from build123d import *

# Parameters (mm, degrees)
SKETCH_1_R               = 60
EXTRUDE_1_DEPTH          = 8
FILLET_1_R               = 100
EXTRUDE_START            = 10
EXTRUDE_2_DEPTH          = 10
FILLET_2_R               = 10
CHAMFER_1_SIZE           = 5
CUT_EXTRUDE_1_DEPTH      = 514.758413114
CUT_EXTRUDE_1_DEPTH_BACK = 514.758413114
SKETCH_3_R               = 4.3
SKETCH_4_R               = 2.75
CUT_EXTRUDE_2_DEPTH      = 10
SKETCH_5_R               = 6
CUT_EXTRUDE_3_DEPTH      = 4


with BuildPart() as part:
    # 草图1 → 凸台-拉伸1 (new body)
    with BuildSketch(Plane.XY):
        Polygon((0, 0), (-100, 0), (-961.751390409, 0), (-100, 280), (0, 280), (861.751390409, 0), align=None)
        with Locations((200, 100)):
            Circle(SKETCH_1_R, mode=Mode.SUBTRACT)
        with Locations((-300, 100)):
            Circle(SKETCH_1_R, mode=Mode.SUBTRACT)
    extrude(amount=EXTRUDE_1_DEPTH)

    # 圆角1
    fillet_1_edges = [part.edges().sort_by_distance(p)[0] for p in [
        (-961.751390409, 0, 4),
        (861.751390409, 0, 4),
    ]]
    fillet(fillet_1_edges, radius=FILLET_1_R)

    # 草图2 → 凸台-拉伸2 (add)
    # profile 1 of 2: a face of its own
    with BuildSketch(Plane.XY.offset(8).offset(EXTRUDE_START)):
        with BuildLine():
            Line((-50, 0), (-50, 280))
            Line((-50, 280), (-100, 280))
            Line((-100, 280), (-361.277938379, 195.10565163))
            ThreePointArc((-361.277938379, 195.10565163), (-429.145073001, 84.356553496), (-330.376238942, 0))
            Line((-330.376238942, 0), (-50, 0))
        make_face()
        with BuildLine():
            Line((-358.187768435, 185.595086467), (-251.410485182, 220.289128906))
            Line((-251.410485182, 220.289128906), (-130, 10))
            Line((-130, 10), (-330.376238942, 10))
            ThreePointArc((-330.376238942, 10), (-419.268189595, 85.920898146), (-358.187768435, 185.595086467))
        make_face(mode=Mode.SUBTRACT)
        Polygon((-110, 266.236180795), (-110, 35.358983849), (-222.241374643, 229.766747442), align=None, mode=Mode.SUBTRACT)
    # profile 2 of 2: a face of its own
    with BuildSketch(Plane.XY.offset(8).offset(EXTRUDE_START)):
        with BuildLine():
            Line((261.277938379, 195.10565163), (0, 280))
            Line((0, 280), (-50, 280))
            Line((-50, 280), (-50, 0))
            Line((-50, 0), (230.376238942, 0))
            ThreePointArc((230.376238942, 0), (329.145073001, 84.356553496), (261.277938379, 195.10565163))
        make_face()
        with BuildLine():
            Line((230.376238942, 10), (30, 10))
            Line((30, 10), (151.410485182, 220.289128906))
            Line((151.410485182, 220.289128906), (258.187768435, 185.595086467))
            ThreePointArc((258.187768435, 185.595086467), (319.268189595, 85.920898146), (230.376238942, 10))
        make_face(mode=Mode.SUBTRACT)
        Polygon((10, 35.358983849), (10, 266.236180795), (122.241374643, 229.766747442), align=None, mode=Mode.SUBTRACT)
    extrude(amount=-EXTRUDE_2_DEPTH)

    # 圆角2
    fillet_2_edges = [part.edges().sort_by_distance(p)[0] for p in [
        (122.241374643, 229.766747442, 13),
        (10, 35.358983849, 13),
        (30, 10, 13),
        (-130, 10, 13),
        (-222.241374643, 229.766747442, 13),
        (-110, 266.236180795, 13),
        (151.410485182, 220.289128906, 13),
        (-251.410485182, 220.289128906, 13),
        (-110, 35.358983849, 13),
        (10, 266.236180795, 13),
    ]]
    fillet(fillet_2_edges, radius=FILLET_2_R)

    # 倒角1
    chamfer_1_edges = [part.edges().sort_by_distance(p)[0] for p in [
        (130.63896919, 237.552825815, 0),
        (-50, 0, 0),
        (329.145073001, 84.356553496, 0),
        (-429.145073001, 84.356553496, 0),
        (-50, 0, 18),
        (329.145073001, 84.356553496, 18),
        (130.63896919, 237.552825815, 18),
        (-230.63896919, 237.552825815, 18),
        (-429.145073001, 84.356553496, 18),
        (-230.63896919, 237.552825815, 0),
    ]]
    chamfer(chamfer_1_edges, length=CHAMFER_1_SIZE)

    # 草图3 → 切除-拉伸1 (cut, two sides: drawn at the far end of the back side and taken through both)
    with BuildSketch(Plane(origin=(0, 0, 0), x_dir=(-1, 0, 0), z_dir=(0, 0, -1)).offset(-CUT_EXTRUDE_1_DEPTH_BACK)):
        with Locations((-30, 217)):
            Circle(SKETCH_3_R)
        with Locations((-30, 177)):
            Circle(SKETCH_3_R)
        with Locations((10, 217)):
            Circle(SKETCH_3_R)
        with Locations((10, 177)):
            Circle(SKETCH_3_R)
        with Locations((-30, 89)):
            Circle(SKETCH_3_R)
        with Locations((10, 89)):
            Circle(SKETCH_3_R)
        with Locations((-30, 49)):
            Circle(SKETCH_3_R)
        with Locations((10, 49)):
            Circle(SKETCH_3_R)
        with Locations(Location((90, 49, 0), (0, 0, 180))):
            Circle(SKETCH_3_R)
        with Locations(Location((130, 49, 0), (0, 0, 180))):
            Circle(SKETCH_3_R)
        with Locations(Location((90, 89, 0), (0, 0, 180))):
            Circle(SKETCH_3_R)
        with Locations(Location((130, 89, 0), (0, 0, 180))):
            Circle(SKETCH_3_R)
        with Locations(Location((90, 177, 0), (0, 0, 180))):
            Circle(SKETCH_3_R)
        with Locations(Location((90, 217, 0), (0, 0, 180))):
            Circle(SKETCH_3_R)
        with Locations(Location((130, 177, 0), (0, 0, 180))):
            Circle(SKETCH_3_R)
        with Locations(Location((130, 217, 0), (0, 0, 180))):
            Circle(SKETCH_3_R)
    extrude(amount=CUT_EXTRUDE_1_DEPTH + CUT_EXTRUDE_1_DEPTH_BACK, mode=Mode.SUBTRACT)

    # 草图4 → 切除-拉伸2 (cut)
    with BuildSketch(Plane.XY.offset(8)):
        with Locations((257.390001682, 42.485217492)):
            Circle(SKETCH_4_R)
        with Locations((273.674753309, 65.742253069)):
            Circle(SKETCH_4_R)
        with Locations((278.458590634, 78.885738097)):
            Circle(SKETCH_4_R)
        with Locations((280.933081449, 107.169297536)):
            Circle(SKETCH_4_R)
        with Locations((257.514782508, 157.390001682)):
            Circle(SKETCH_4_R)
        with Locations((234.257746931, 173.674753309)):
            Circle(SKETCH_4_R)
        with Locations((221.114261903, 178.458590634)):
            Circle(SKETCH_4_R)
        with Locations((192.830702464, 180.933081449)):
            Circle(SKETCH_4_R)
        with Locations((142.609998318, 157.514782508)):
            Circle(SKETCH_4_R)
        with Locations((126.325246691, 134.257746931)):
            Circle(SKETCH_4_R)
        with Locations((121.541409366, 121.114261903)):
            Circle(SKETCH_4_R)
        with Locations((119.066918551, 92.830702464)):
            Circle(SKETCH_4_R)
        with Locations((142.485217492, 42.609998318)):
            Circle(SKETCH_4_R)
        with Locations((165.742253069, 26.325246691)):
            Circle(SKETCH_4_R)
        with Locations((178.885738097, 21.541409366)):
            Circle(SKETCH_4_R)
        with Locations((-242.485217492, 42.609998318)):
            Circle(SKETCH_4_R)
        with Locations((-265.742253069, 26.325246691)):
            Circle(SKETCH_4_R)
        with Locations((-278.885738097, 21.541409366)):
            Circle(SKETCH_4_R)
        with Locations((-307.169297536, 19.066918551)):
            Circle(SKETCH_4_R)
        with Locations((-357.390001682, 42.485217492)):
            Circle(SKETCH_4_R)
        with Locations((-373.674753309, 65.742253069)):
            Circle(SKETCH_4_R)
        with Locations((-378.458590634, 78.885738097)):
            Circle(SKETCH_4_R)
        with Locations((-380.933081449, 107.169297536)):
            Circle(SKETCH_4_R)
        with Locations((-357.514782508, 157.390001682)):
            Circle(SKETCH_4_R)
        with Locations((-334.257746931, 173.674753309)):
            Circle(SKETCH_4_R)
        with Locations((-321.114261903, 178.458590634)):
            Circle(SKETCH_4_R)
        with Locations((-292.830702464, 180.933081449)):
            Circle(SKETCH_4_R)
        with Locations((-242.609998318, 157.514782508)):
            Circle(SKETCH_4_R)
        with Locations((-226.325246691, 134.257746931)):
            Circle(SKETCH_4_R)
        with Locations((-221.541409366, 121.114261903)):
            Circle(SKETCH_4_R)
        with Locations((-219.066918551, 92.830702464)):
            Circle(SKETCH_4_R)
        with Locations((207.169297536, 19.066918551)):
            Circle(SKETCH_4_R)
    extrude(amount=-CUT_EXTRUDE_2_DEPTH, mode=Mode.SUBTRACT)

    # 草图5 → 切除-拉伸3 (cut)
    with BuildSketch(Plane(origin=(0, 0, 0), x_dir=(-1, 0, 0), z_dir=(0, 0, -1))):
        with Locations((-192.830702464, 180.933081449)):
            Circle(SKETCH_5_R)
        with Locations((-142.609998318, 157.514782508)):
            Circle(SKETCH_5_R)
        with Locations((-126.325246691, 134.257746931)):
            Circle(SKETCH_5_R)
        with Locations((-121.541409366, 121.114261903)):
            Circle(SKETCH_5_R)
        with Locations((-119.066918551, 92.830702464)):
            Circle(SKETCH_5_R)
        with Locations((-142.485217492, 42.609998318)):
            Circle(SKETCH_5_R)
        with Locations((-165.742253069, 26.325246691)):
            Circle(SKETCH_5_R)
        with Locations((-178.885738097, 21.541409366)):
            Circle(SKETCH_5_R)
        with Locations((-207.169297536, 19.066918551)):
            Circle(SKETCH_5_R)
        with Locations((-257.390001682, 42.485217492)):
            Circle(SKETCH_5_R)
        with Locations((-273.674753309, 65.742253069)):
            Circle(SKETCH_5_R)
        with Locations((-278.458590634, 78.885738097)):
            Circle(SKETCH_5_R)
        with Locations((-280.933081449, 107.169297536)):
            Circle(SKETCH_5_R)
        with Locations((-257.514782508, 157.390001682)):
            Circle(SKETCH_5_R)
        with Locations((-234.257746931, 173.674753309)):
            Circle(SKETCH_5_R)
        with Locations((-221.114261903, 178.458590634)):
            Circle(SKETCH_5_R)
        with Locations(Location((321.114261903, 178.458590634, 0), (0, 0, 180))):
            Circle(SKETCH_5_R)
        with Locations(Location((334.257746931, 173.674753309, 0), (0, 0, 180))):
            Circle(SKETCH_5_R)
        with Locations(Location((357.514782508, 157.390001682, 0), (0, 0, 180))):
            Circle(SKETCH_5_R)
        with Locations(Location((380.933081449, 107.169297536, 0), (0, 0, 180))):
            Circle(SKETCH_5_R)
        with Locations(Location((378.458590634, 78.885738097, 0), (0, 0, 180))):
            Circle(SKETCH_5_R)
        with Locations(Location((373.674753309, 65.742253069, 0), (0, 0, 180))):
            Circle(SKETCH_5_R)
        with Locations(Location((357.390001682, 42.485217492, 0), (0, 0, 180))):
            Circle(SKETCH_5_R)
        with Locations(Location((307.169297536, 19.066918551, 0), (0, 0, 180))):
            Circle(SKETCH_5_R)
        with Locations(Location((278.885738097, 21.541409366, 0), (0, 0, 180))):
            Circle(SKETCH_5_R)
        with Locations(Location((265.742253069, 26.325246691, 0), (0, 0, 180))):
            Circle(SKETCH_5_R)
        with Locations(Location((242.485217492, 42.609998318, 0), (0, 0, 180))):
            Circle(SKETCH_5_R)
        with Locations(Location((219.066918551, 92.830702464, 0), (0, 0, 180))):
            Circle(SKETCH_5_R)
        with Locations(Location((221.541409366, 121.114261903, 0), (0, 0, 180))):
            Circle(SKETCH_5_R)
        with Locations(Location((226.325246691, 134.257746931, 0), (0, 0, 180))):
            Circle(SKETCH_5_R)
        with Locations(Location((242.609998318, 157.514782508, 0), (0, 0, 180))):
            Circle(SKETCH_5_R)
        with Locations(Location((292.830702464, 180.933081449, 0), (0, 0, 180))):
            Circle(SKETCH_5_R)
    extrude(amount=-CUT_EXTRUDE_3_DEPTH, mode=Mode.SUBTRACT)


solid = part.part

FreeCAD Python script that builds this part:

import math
import FreeCAD as App
import Part
import Sketcher
from FreeCAD import Vector
Q = App.Units.Quantity


def edges_at(feature, points):
    """Names of the edges that pass closest to the given points."""
    edges = feature.Shape.Edges
    near = lambda p: min(range(len(edges)), key=lambda i: edges[i].distToShape(Part.Vertex(*p))[0])
    return sorted({f"Edge{near(p) + 1}" for p in points})

doc = App.newDocument("Part")
body = doc.addObject("PartDesign::Body", "Body")

# Sketch on XY plane
sketch1 = body.newObject("Sketcher::SketchObject", "Sketch")
sketch1.AttachmentSupport = (doc.getObject("XY_Plane"), [""])
sketch1.MapMode = "FlatFace"
sketch1.addGeometry(Part.LineSegment(Vector(-962, 0, 0), Vector(862, 0, 0)), False)
sketch1.addGeometry(Part.LineSegment(Vector(862, 0, 0), Vector(0, 280, 0)), False)
sketch1.addGeometry(Part.LineSegment(Vector(0, 280, 0), Vector(-100, 280, 0)), False)
sketch1.addGeometry(Part.LineSegment(Vector(-100, 280, 0), Vector(-962, 0, 0)), False)
sketch1.addGeometry(Part.Circle(Vector(200, 100, 0), Vector(0, 0, 1), 60), False)
sketch1.addGeometry(Part.Circle(Vector(-300, 100, 0), Vector(0, 0, 1), 60), False)
sketch1.addConstraint(Sketcher.Constraint("Coincident", 0, 2, 1, 1))
sketch1.addConstraint(Sketcher.Constraint("Coincident", 1, 2, 2, 1))
sketch1.addConstraint(Sketcher.Constraint("Coincident", 2, 2, 3, 1))
sketch1.addConstraint(Sketcher.Constraint("Coincident", 3, 2, 0, 1))
sketch1.addConstraint(Sketcher.Constraint("Horizontal", 0))
sketch1.addConstraint(Sketcher.Constraint("Horizontal", 2))
sketch1.addConstraint(Sketcher.Constraint("Equal", 4, 5))
sketch1.addConstraint(Sketcher.Constraint("PointOnObject", 0, 2, -1))
sketch1.addConstraint(Sketcher.Constraint("PointOnObject", 1, 2, -2))
sketch1.addConstraint(Sketcher.Constraint("Horizontal", 4, 3, 5, 3))
sketch1.addConstraint(Sketcher.Constraint("Equal", 1, 3))
sketch1.addConstraint(Sketcher.Constraint("Diameter", 4, Q("120 mm")))
sketch1.addConstraint(Sketcher.Constraint("DistanceX", 2, 2, 2, 1, Q("100 mm")))
sketch1.addConstraint(Sketcher.Constraint("Angle", 1, Q("162 deg")))
sketch1.addConstraint(Sketcher.Constraint("DistanceX", -1, 1, 4, 3, Q("200 mm")))
sketch1.addConstraint(Sketcher.Constraint("DistanceY", -1, 1, 4, 3, Q("100 mm")))
sketch1.addConstraint(Sketcher.Constraint("DistanceX", 5, 3, -1, 1, Q("300 mm")))
sketch1.addConstraint(Sketcher.Constraint("DistanceY", -1, 1, 1, 2, Q("280 mm")))
pad1 = body.newObject("PartDesign::Pad", "Pad")
pad1.Profile = sketch1
pad1.Length = 8
doc.recompute()

fillet = body.newObject("PartDesign::Fillet", "Fillet")
fillet.Base = (pad1, edges_at(pad1, [(-961.751, 0, 4), (861.751, 0, 4)]))
fillet.Radius = 100

# Sketch on XY plane
sketch2 = body.newObject("Sketcher::SketchObject", "Sketch001")
sketch2.AttachmentSupport = (doc.getObject("XY_Plane"), [""])
sketch2.MapMode = "FlatFace"
sketch2.AttachmentOffset = App.Placement(Vector(0, 0, 18), App.Rotation())
sketch2.addGeometry(Part.LineSegment(Vector(-330, 0, 0), Vector(230, 0, 0)), False)
sketch2.addGeometry(Part.ArcOfCircle(Part.Circle(Vector(230, 100, 0), Vector(0, 0, 1), 100), math.radians(-90), math.radians(72)), False)
sketch2.addGeometry(Part.LineSegment(Vector(261, 195, 0), Vector(0, 280, 0)), False)
sketch2.addGeometry(Part.LineSegment(Vector(0, 280, 0), Vector(-100, 280, 0)), False)
sketch2.addGeometry(Part.LineSegment(Vector(-100, 280, 0), Vector(-361, 195, 0)), False)
sketch2.addGeometry(Part.ArcOfCircle(Part.Circle(Vector(-330, 100, 0), Vector(0, 0, 1), 100), math.radians(108), math.radians(270)), False)
sketch2.addGeometry(Part.ArcOfCircle(Part.Circle(Vector(-330, 100, 0), Vector(0, 0, 1), 90), math.radians(108), math.radians(270)), False)
sketch2.addGeometry(Part.LineSegment(Vector(-358, 186, 0), Vector(-251, 220, 0)), False)
sketch2.addGeometry(Part.LineSegment(Vector(-251, 220, 0), Vector(-130, 10, 0)), False)
sketch2.addGeometry(Part.LineSegment(Vector(-130, 10, 0), Vector(-330, 10, 0)), False)
sketch2.addGeometry(Part.LineSegment(Vector(-222, 230, 0), Vector(-110, 266, 0)), False)
sketch2.addGeometry(Part.LineSegment(Vector(-110, 266, 0), Vector(-110, 35, 0)), False)
sketch2.addGeometry(Part.LineSegment(Vector(-110, 35, 0), Vector(-222, 230, 0)), False)
sketch2.addGeometry(Part.LineSegment(Vector(10, 35, 0), Vector(10, 266, 0)), False)
sketch2.addGeometry(Part.LineSegment(Vector(10, 266, 0), Vector(122, 230, 0)), False)
sketch2.addGeometry(Part.LineSegment(Vector(122, 230, 0), Vector(10, 35, 0)), False)
sketch2.addGeometry(Part.ArcOfCircle(Part.Circle(Vector(230, 100, 0), Vector(0, 0, 1), 90), math.radians(-90), math.radians(72)), False)
sketch2.addGeometry(Part.LineSegment(Vector(230, 10, 0), Vector(30, 10, 0)), False)
sketch2.addGeometry(Part.LineSegment(Vector(30, 10, 0), Vector(151, 220, 0)), False)
sketch2.addGeometry(Part.LineSegment(Vector(151, 220, 0), Vector(258, 186, 0)), False)
sketch2.addConstraint(Sketcher.Constraint("Tangent", 0, 2, 1, 1))
sketch2.addConstraint(Sketcher.Constraint("Tangent", 1, 2, 2, 1))
sketch2.addConstraint(Sketcher.Constraint("Coincident", 2, 2, 3, 1))
sketch2.addConstraint(Sketcher.Constraint("Coincident", 3, 2, 4, 1))
sketch2.addConstraint(Sketcher.Constraint("Tangent", 4, 2, 5, 1))
sketch2.addConstraint(Sketcher.Constraint("Tangent", 5, 2, 0, 1))
sketch2.addConstraint(Sketcher.Constraint("Tangent", 6, 1, 7, 1))
sketch2.addConstraint(Sketcher.Constraint("Coincident", 7, 2, 8, 1))
sketch2.addConstraint(Sketcher.Constraint("Coincident", 8, 2, 9, 1))
sketch2.addConstraint(Sketcher.Constraint("Tangent", 9, 2, 6, 2))
sketch2.addConstraint(Sketcher.Constraint("Coincident", 10, 2, 11, 1))
sketch2.addConstraint(Sketcher.Constraint("Coincident", 11, 2, 12, 1))
sketch2.addConstraint(Sketcher.Constraint("Coincident", 12, 2, 10, 1))
sketch2.addConstraint(Sketcher.Constraint("Coincident", 13, 2, 14, 1))
sketch2.addConstraint(Sketcher.Constraint("Coincident", 14, 2, 15, 1))
sketch2.addConstraint(Sketcher.Constraint("Coincident", 15, 2, 13, 1))
sketch2.addConstraint(Sketcher.Constraint("Tangent", 16, 1, 17, 1))
sketch2.addConstraint(Sketcher.Constraint("Coincident", 17, 2, 18, 1))
sketch2.addConstraint(Sketcher.Constraint("Coincident", 18, 2, 19, 1))
sketch2.addConstraint(Sketcher.Constraint("Tangent", 19, 2, 16, 2))
sketch2.addConstraint(Sketcher.Constraint("Horizontal", 0))
sketch2.addConstraint(Sketcher.Constraint("Horizontal", 3))
sketch2.addConstraint(Sketcher.Constraint("Horizontal", 9))
sketch2.addConstraint(Sketcher.Constraint("Vertical", 11))
sketch2.addConstraint(Sketcher.Constraint("Vertical", 13))
sketch2.addConstraint(Sketcher.Constraint("Horizontal", 17))
sketch2.addConstraint(Sketcher.Constraint("Coincident", 6, 3, 5, 3))
sketch2.addConstraint(Sketcher.Constraint("Coincident", 16, 3, 1, 3))
sketch2.addConstraint(Sketcher.Constraint("Equal", 1, 5))
sketch2.addConstraint(Sketcher.Constraint("Equal", 6, 16))
sketch2.addConstraint(Sketcher.Constraint("PointOnObject", 0, 2, -1))
sketch2.addConstraint(Sketcher.Constraint("PointOnObject", 2, 2, -2))
sketch2.addConstraint(Sketcher.Constraint("Parallel", 4, 7))
sketch2.addConstraint(Sketcher.Constraint("Parallel", 7, 10))
sketch2.addConstraint(Sketcher.Constraint("Parallel", 8, 12))
sketch2.addConstraint(Sketcher.Constraint("Parallel", 2, 14))
sketch2.addConstraint(Sketcher.Constraint("Parallel", 15, 18))
sketch2.addConstraint(Sketcher.Constraint("Parallel", 14, 19))
sketch2.addConstraint(Sketcher.Constraint("Horizontal", 10, 2, 13, 2))
sketch2.addConstraint(Sketcher.Constraint("Horizontal", 12, 2, 14, 2))
sketch2.addConstraint(Sketcher.Constraint("Horizontal", 11, 2, 15, 2))
sketch2.addConstraint(Sketcher.Constraint("Horizontal", 7, 2, 18, 2))
sketch2.addConstraint(Sketcher.Constraint("Equal", 9, 17))
sketch2.addConstraint(Sketcher.Constraint("Radius", 1, Q("100 mm")))
sketch2.addConstraint(Sketcher.Constraint("Radius", 6, Q("90 mm")))
sketch2.addConstraint(Sketcher.Constraint("DistanceX", 3, 2, 3, 1, Q("100 mm")))
sketch2.addConstraint(Sketcher.Constraint("Angle", 2, Q("162 deg")))
sketch2.addConstraint(Sketcher.Constraint("Angle", 8, Q("-60 deg")))
sketch2.addConstraint(Sketcher.Constraint("DistanceY", -1, 1, 2, 2, Q("280 mm")))
sketch2.addConstraint(Sketcher.Constraint("DistanceX", 8, 2, -1, 1, Q("130 mm")))
sketch2.addConstraint(Sketcher.Constraint("DistanceX", 10, 2, -1, 1, Q("110 mm")))
sketch2.addConstraint(Sketcher.Constraint("DistanceX", -1, 1, 13, 2, Q("10 mm")))
sketch2.addConstraint(Sketcher.Constraint("Distance", 12, Q("224.482749 mm")))
sketch2.addConstraint(Sketcher.Constraint("DistanceY", -1, 1, 10, 2, Q("266.236181 mm")))
pad2 = body.newObject("PartDesign::Pad", "Pad001")
pad2.Profile = sketch2
pad2.Length = 10
pad2.Reversed = True
doc.recompute()

fillet2 = body.newObject("PartDesign::Fillet", "Fillet001")
fillet2.Base = (pad2, edges_at(pad2, [
    (122.241, 229.767, 13),
    (10, 35.359, 13),
    (30, 10, 13),
    (-130, 10, 13),
    (-222.241, 229.767, 13),
    (-110, 266.236, 13),
    (151.41, 220.289, 13),
    (-251.41, 220.289, 13),
    (-110, 35.359, 13),
    (10, 266.236, 13),
]))
fillet2.Radius = 10
doc.recompute()

chamfer = body.newObject("PartDesign::Chamfer", "Chamfer")
chamfer.Base = (fillet2, edges_at(fillet2, [
    (130.639, 237.553, 0),
    (-50, 0, 0),
    (329.145, 84.357, 0),
    (-429.145, 84.357, 0),
    (-50, 0, 18),
    (329.145, 84.357, 18),
    (130.639, 237.553, 18),
    (-230.639, 237.553, 18),
    (-429.145, 84.357, 18),
    (-230.639, 237.553, 0),
]))
chamfer.Size = 5

# Sketch on XY plane
sketch3 = body.newObject("Sketcher::SketchObject", "Sketch002")
sketch3.AttachmentSupport = (doc.getObject("XY_Plane"), [""])
sketch3.MapMode = "FlatFace"
sketch3.addGeometry(Part.Circle(Vector(30, 217, 0), Vector(0, 0, 1), 4.3), False)
sketch3.addGeometry(Part.Circle(Vector(30, 177, 0), Vector(0, 0, 1), 4.3), False)
sketch3.addGeometry(Part.Circle(Vector(-10, 217, 0), Vector(0, 0, 1), 4.3), False)
sketch3.addGeometry(Part.Circle(Vector(-10, 177, 0), Vector(0, 0, 1), 4.3), False)
sketch3.addGeometry(Part.Circle(Vector(30, 89, 0), Vector(0, 0, 1), 4.3), False)
sketch3.addGeometry(Part.Circle(Vector(-10, 89, 0), Vector(0, 0, 1), 4.3), False)
sketch3.addGeometry(Part.Circle(Vector(30, 49, 0), Vector(0, 0, 1), 4.3), False)
sketch3.addGeometry(Part.Circle(Vector(-10, 49, 0), Vector(0, 0, 1), 4.3), False)
sketch3.addGeometry(Part.Circle(Vector(-90, 49, 0), Vector(0, 0, 1), 4.3), False)
sketch3.addGeometry(Part.Circle(Vector(-130, 49, 0), Vector(0, 0, 1), 4.3), False)
sketch3.addGeometry(Part.Circle(Vector(-90, 89, 0), Vector(0, 0, 1), 4.3), False)
sketch3.addGeometry(Part.Circle(Vector(-130, 89, 0), Vector(0, 0, 1), 4.3), False)
sketch3.addGeometry(Part.Circle(Vector(-90, 177, 0), Vector(0, 0, 1), 4.3), False)
sketch3.addGeometry(Part.Circle(Vector(-90, 217, 0), Vector(0, 0, 1), 4.3), False)
sketch3.addGeometry(Part.Circle(Vector(-130, 177, 0), Vector(0, 0, 1), 4.3), False)
sketch3.addGeometry(Part.Circle(Vector(-130, 217, 0), Vector(0, 0, 1), 4.3), False)
sketch3.addConstraint(Sketcher.Constraint("Equal", 0, 1))
sketch3.addConstraint(Sketcher.Constraint("Equal", 1, 2))
sketch3.addConstraint(Sketcher.Constraint("Equal", 2, 3))
sketch3.addConstraint(Sketcher.Constraint("Equal", 3, 4))
sketch3.addConstraint(Sketcher.Constraint("Equal", 4, 5))
sketch3.addConstraint(Sketcher.Constraint("Equal", 5, 6))
sketch3.addConstraint(Sketcher.Constraint("Equal", 6, 7))
sketch3.addConstraint(Sketcher.Constraint("Equal", 7, 8))
sketch3.addConstraint(Sketcher.Constraint("Equal", 8, 9))
sketch3.addConstraint(Sketcher.Constraint("Equal", 9, 10))
sketch3.addConstraint(Sketcher.Constraint("Equal", 10, 11))
sketch3.addConstraint(Sketcher.Constraint("Equal", 11, 12))
sketch3.addConstraint(Sketcher.Constraint("Equal", 12, 13))
sketch3.addConstraint(Sketcher.Constraint("Equal", 13, 14))
sketch3.addConstraint(Sketcher.Constraint("Equal", 14, 15))
sketch3.addConstraint(Sketcher.Constraint("Horizontal", 0, 3, 2, 3))
sketch3.addConstraint(Sketcher.Constraint("Horizontal", 1, 3, 3, 3))
sketch3.addConstraint(Sketcher.Constraint("Horizontal", 4, 3, 5, 3))
sketch3.addConstraint(Sketcher.Constraint("Horizontal", 6, 3, 7, 3))
sketch3.addConstraint(Sketcher.Constraint("Horizontal", 7, 3, 8, 3))
sketch3.addConstraint(Sketcher.Constraint("Horizontal", 8, 3, 9, 3))
sketch3.addConstraint(Sketcher.Constraint("Horizontal", 5, 3, 10, 3))
sketch3.addConstraint(Sketcher.Constraint("Horizontal", 10, 3, 11, 3))
sketch3.addConstraint(Sketcher.Constraint("Horizontal", 3, 3, 12, 3))
sketch3.addConstraint(Sketcher.Constraint("Horizontal", 2, 3, 13, 3))
sketch3.addConstraint(Sketcher.Constraint("Horizontal", 12, 3, 14, 3))
sketch3.addConstraint(Sketcher.Constraint("Horizontal", 13, 3, 15, 3))
sketch3.addConstraint(Sketcher.Constraint("Vertical", 0, 3, 1, 3))
sketch3.addConstraint(Sketcher.Constraint("Vertical", 2, 3, 3, 3))
sketch3.addConstraint(Sketcher.Constraint("Vertical", 1, 3, 4, 3))
sketch3.addConstraint(Sketcher.Constraint("Vertical", 3, 3, 5, 3))
sketch3.addConstraint(Sketcher.Constraint("Vertical", 4, 3, 6, 3))
sketch3.addConstraint(Sketcher.Constraint("Vertical", 5, 3, 7, 3))
sketch3.addConstraint(Sketcher.Constraint("Vertical", 8, 3, 10, 3))
sketch3.addConstraint(Sketcher.Constraint("Vertical", 9, 3, 11, 3))
sketch3.addConstraint(Sketcher.Constraint("Vertical", 10, 3, 12, 3))
sketch3.addConstraint(Sketcher.Constraint("Vertical", 12, 3, 13, 3))
sketch3.addConstraint(Sketcher.Constraint("Vertical", 11, 3, 14, 3))
sketch3.addConstraint(Sketcher.Constraint("Vertical", 14, 3, 15, 3))
sketch3.addConstraint(Sketcher.Constraint("Diameter", 0, Q("8.6 mm")))
sketch3.addConstraint(Sketcher.Constraint("DistanceX", -1, 1, 0, 3, Q("30 mm")))
sketch3.addConstraint(Sketcher.Constraint("DistanceY", -1, 1, 0, 3, Q("217 mm")))
sketch3.addConstraint(Sketcher.Constraint("DistanceY", -1, 1, 1, 3, Q("177 mm")))
sketch3.addConstraint(Sketcher.Constraint("DistanceX", 2, 3, -1, 1, Q("10 mm")))
sketch3.addConstraint(Sketcher.Constraint("DistanceY", -1, 1, 4, 3, Q("89 mm")))
sketch3.addConstraint(Sketcher.Constraint("DistanceY", -1, 1, 6, 3, Q("49 mm")))
sketch3.addConstraint(Sketcher.Constraint("DistanceX", 8, 3, -1, 1, Q("90 mm")))
sketch3.addConstraint(Sketcher.Constraint("DistanceX", 9, 3, -1, 1, Q("130 mm")))
pocket1 = body.newObject("PartDesign::Pocket", "Pocket")
pocket1.Profile = sketch3
pocket1.Type = "ThroughAll"
pocket1.Midplane = True

# Sketch on XY plane
sketch4 = body.newObject("Sketcher::SketchObject", "Sketch003")
sketch4.AttachmentSupport = (doc.getObject("XY_Plane"), [""])
sketch4.MapMode = "FlatFace"
sketch4.AttachmentOffset = App.Placement(Vector(0, 0, 8), App.Rotation())
sketch4.addGeometry(Part.Circle(Vector(257.4, 42.5, 0), Vector(0, 0, 1), 2.8), False)
sketch4.addGeometry(Part.Circle(Vector(273.7, 65.7, 0), Vector(0, 0, 1), 2.8), False)
sketch4.addGeometry(Part.Circle(Vector(278.5, 78.9, 0), Vector(0, 0, 1), 2.8), False)
sketch4.addGeometry(Part.Circle(Vector(280.9, 107.2, 0), Vector(0, 0, 1), 2.8), False)
sketch4.addGeometry(Part.Circle(Vector(257.5, 157.4, 0), Vector(0, 0, 1), 2.8), False)
sketch4.addGeometry(Part.Circle(Vector(234.3, 173.7, 0), Vector(0, 0, 1), 2.8), False)
sketch4.addGeometry(Part.Circle(Vector(221.1, 178.5, 0), Vector(0, 0, 1), 2.8), False)
sketch4.addGeometry(Part.Circle(Vector(192.8, 180.9, 0), Vector(0, 0, 1), 2.8), False)
sketch4.addGeometry(Part.Circle(Vector(142.6, 157.5, 0), Vector(0, 0, 1), 2.8), False)
sketch4.addGeometry(Part.Circle(Vector(126.3, 134.3, 0), Vector(0, 0, 1), 2.8), False)
sketch4.addGeometry(Part.Circle(Vector(121.5, 121.1, 0), Vector(0, 0, 1), 2.8), False)
sketch4.addGeometry(Part.Circle(Vector(119.1, 92.8, 0), Vector(0, 0, 1), 2.8), False)
sketch4.addGeometry(Part.Circle(Vector(142.5, 42.6, 0), Vector(0, 0, 1), 2.8), False)
sketch4.addGeometry(Part.Circle(Vector(165.7, 26.3, 0), Vector(0, 0, 1), 2.8), False)
sketch4.addGeometry(Part.Circle(Vector(178.9, 21.5, 0), Vector(0, 0, 1), 2.8), False)
sketch4.addGeometry(Part.Circle(Vector(-242.5, 42.6, 0), Vector(0, 0, 1), 2.8), False)
sketch4.addGeometry(Part.Circle(Vector(-265.7, 26.3, 0), Vector(0, 0, 1), 2.8), False)
sketch4.addGeometry(Part.Circle(Vector(-278.9, 21.5, 0), Vector(0, 0, 1), 2.8), False)
sketch4.addGeometry(Part.Circle(Vector(-307.2, 19.1, 0), Vector(0, 0, 1), 2.8), False)
sketch4.addGeometry(Part.Circle(Vector(-357.4, 42.5, 0), Vector(0, 0, 1), 2.8), False)
sketch4.addGeometry(Part.Circle(Vector(-373.7, 65.7, 0), Vector(0, 0, 1), 2.8), False)
sketch4.addGeometry(Part.Circle(Vector(-378.5, 78.9, 0), Vector(0, 0, 1), 2.8), False)
sketch4.addGeometry(Part.Circle(Vector(-380.9, 107.2, 0), Vector(0, 0, 1), 2.8), False)
sketch4.addGeometry(Part.Circle(Vector(-357.5, 157.4, 0), Vector(0, 0, 1), 2.8), False)
sketch4.addGeometry(Part.Circle(Vector(-334.3, 173.7, 0), Vector(0, 0, 1), 2.8), False)
sketch4.addGeometry(Part.Circle(Vector(-321.1, 178.5, 0), Vector(0, 0, 1), 2.8), False)
sketch4.addGeometry(Part.Circle(Vector(-292.8, 180.9, 0), Vector(0, 0, 1), 2.8), False)
sketch4.addGeometry(Part.Circle(Vector(-242.6, 157.5, 0), Vector(0, 0, 1), 2.8), False)
sketch4.addGeometry(Part.Circle(Vector(-226.3, 134.3, 0), Vector(0, 0, 1), 2.8), False)
sketch4.addGeometry(Part.Circle(Vector(-221.5, 121.1, 0), Vector(0, 0, 1), 2.8), False)
sketch4.addGeometry(Part.Circle(Vector(-219.1, 92.8, 0), Vector(0, 0, 1), 2.8), False)
sketch4.addGeometry(Part.Circle(Vector(207.2, 19.1, 0), Vector(0, 0, 1), 2.8), False)
sketch4.addConstraint(Sketcher.Constraint("Equal", 0, 1))
sketch4.addConstraint(Sketcher.Constraint("Equal", 1, 2))
sketch4.addConstraint(Sketcher.Constraint("Equal", 2, 3))
sketch4.addConstraint(Sketcher.Constraint("Equal", 3, 4))
sketch4.addConstraint(Sketcher.Constraint("Equal", 4, 5))
sketch4.addConstraint(Sketcher.Constraint("Equal", 5, 6))
sketch4.addConstraint(Sketcher.Constraint("Equal", 6, 7))
sketch4.addConstraint(Sketcher.Constraint("Equal", 7, 8))
sketch4.addConstraint(Sketcher.Constraint("Equal", 8, 9))
sketch4.addConstraint(Sketcher.Constraint("Equal", 9, 10))
sketch4.addConstraint(Sketcher.Constraint("Equal", 10, 11))
sketch4.addConstraint(Sketcher.Constraint("Equal", 11, 12))
sketch4.addConstraint(Sketcher.Constraint("Equal", 12, 13))
sketch4.addConstraint(Sketcher.Constraint("Equal", 13, 14))
sketch4.addConstraint(Sketcher.Constraint("Equal", 14, 15))
sketch4.addConstraint(Sketcher.Constraint("Equal", 15, 16))
sketch4.addConstraint(Sketcher.Constraint("Equal", 16, 17))
sketch4.addConstraint(Sketcher.Constraint("Equal", 17, 18))
sketch4.addConstraint(Sketcher.Constraint("Equal", 18, 19))
sketch4.addConstraint(Sketcher.Constraint("Equal", 19, 20))
sketch4.addConstraint(Sketcher.Constraint("Equal", 20, 21))
sketch4.addConstraint(Sketcher.Constraint("Equal", 21, 22))
sketch4.addConstraint(Sketcher.Constraint("Equal", 22, 23))
sketch4.addConstraint(Sketcher.Constraint("Equal", 23, 24))
sketch4.addConstraint(Sketcher.Constraint("Equal", 24, 25))
sketch4.addConstraint(Sketcher.Constraint("Equal", 25, 26))
sketch4.addConstraint(Sketcher.Constraint("Equal", 26, 27))
sketch4.addConstraint(Sketcher.Constraint("Equal", 27, 28))
sketch4.addConstraint(Sketcher.Constraint("Equal", 28, 29))
sketch4.addConstraint(Sketcher.Constraint("Equal", 29, 30))
sketch4.addConstraint(Sketcher.Constraint("Equal", 30, 31))
sketch4.addConstraint(Sketcher.Constraint("Horizontal", 12, 3, 15, 3))
sketch4.addConstraint(Sketcher.Constraint("Horizontal", 13, 3, 16, 3))
sketch4.addConstraint(Sketcher.Constraint("Horizontal", 14, 3, 17, 3))
sketch4.addConstraint(Sketcher.Constraint("Horizontal", 0, 3, 19, 3))
sketch4.addConstraint(Sketcher.Constraint("Horizontal", 1, 3, 20, 3))
sketch4.addConstraint(Sketcher.Constraint("Horizontal", 2, 3, 21, 3))
sketch4.addConstraint(Sketcher.Constraint("Horizontal", 3, 3, 22, 3))
sketch4.addConstraint(Sketcher.Constraint("Horizontal", 4, 3, 23, 3))
sketch4.addConstraint(Sketcher.Constraint("Horizontal", 5, 3, 24, 3))
sketch4.addConstraint(Sketcher.Constraint("Horizontal", 6, 3, 25, 3))
sketch4.addConstraint(Sketcher.Constraint("Horizontal", 7, 3, 26, 3))
sketch4.addConstraint(Sketcher.Constraint("Horizontal", 8, 3, 27, 3))
sketch4.addConstraint(Sketcher.Constraint("Horizontal", 9, 3, 28, 3))
sketch4.addConstraint(Sketcher.Constraint("Horizontal", 10, 3, 29, 3))
sketch4.addConstraint(Sketcher.Constraint("Horizontal", 11, 3, 30, 3))
sketch4.addConstraint(Sketcher.Constraint("Horizontal", 18, 3, 31, 3))
sketch4.addConstraint(Sketcher.Constraint("Diameter", 0, Q("5.5 mm")))
sketch4.addConstraint(Sketcher.Constraint("DistanceX", -1, 1, 0, 3, Q("257.390002 mm")))
sketch4.addConstraint(Sketcher.Constraint("DistanceY", -1, 1, 4, 3, Q("157.390002 mm")))
sketch4.addConstraint(Sketcher.Constraint("DistanceX", -1, 1, 8, 3, Q("142.609998 mm")))
sketch4.addConstraint(Sketcher.Constraint("DistanceY", -1, 1, 12, 3, Q("42.609998 mm")))
sketch4.addConstraint(Sketcher.Constraint("DistanceX", 19, 3, -1, 1, Q("357.390002 mm")))
sketch4.addConstraint(Sketcher.Constraint("DistanceX", 27, 3, -1, 1, Q("242.609998 mm")))
sketch4.addConstraint(Sketcher.Constraint("DistanceX", 4, 3, 3, 3, Q("23.418299 mm")))
sketch4.addConstraint(Sketcher.Constraint("DistanceY", 1, 3, 5, 3, Q("107.9325 mm")))
sketch4.addConstraint(Sketcher.Constraint("DistanceY", 8, 3, 7, 3, Q("23.418299 mm")))
sketch4.addConstraint(Sketcher.Constraint("DistanceX", 9, 3, 5, 3, Q("107.9325 mm")))
sketch4.addConstraint(Sketcher.Constraint("DistanceX", 11, 3, 12, 3, Q("23.418299 mm")))
sketch4.addConstraint(Sketcher.Constraint("DistanceX", 13, 3, 1, 3, Q("107.9325 mm")))
sketch4.addConstraint(Sketcher.Constraint("DistanceX", 16, 3, 9, 3, Q("392.0675 mm")))
sketch4.addConstraint(Sketcher.Constraint("DistanceY", 16, 3, 9, 3, Q("107.9325 mm")))
sketch4.addConstraint(Sketcher.Constraint("DistanceY", 18, 3, 19, 3, Q("23.418299 mm")))
sketch4.addConstraint(Sketcher.Constraint("DistanceX", 20, 3, 16, 3, Q("107.9325 mm")))
sketch4.addConstraint(Sketcher.Constraint("DistanceX", 22, 3, 23, 3, Q("23.418299 mm")))
sketch4.addConstraint(Sketcher.Constraint("DistanceX", 24, 3, 28, 3, Q("107.9325 mm")))
sketch4.addConstraint(Sketcher.Constraint("DistanceX", 15, 3, 30, 3, Q("23.418299 mm")))
sketch4.addConstraint(Sketcher.Constraint("DistanceX", -1, 1, 2, 3, Q("278.458591 mm")))
sketch4.addConstraint(Sketcher.Constraint("DistanceY", -1, 1, 2, 3, Q("78.885738 mm")))
sketch4.addConstraint(Sketcher.Constraint("DistanceX", -1, 1, 3, 3, Q("280.933081 mm")))
sketch4.addConstraint(Sketcher.Constraint("DistanceX", -1, 1, 6, 3, Q("221.114262 mm")))
sketch4.addConstraint(Sketcher.Constraint("DistanceY", -1, 1, 6, 3, Q("178.458591 mm")))
sketch4.addConstraint(Sketcher.Constraint("DistanceY", -1, 1, 7, 3, Q("180.933081 mm")))
sketch4.addConstraint(Sketcher.Constraint("DistanceX", -1, 1, 10, 3, Q("121.541409 mm")))
sketch4.addConstraint(Sketcher.Constraint("DistanceY", -1, 1, 10, 3, Q("121.114262 mm")))
sketch4.addConstraint(Sketcher.Constraint("DistanceX", -1, 1, 11, 3, Q("119.066919 mm")))
sketch4.addConstraint(Sketcher.Constraint("DistanceX", -1, 1, 14, 3, Q("178.885738 mm")))
sketch4.addConstraint(Sketcher.Constraint("DistanceY", -1, 1, 14, 3, Q("21.541409 mm")))
sketch4.addConstraint(Sketcher.Constraint("DistanceX", 17, 3, -1, 1, Q("278.885738 mm")))
sketch4.addConstraint(Sketcher.Constraint("DistanceY", -1, 1, 18, 3, Q("19.066919 mm")))
sketch4.addConstraint(Sketcher.Constraint("DistanceX", 21, 3, -1, 1, Q("378.458591 mm")))
sketch4.addConstraint(Sketcher.Constraint("DistanceX", 22, 3, -1, 1, Q("380.933081 mm")))
sketch4.addConstraint(Sketcher.Constraint("DistanceX", 25, 3, -1, 1, Q("321.114262 mm")))
sketch4.addConstraint(Sketcher.Constraint("DistanceX", 29, 3, -1, 1, Q("221.541409 mm")))
sketch4.addConstraint(Sketcher.Constraint("DistanceX", 30, 3, -1, 1, Q("219.066919 mm")))
sketch4.addConstraint(Sketcher.Constraint("DistanceX", 0, 3, 1, 3, Q("16.284752 mm")))
sketch4.addConstraint(Sketcher.Constraint("DistanceY", 2, 3, 3, 3, Q("28.283559 mm")))
sketch4.addConstraint(Sketcher.Constraint("DistanceY", 1, 3, 4, 3, Q("91.647749 mm")))
sketch4.addConstraint(Sketcher.Constraint("DistanceX", 7, 3, 6, 3, Q("28.283559 mm")))
sketch4.addConstraint(Sketcher.Constraint("DistanceX", 8, 3, 5, 3, Q("91.647749 mm")))
sketch4.addConstraint(Sketcher.Constraint("DistanceY", 11, 3, 10, 3, Q("28.283559 mm")))
sketch4.addConstraint(Sketcher.Constraint("DistanceY", 12, 3, 9, 3, Q("91.647749 mm")))
sketch4.addConstraint(Sketcher.Constraint("DistanceX", 18, 3, 17, 3, Q("28.283559 mm")))
sketch4.addConstraint(Sketcher.Constraint("DistanceX", 25, 3, 26, 3, Q("28.283559 mm")))
sketch4.addConstraint(Sketcher.Constraint("DistanceX", 24, 3, 27, 3, Q("91.647749 mm")))
sketch4.addConstraint(Sketcher.Constraint("DistanceX", 14, 3, 31, 3, Q("28.283559 mm")))
pocket2 = body.newObject("PartDesign::Pocket", "Pocket001")
pocket2.Profile = sketch4
pocket2.Length = 10

# Sketch on XY plane
sketch5 = body.newObject("Sketcher::SketchObject", "Sketch004")
sketch5.AttachmentSupport = (doc.getObject("XY_Plane"), [""])
sketch5.MapMode = "FlatFace"
sketch5.addGeometry(Part.Circle(Vector(193, 181, 0), Vector(0, 0, 1), 6), False)
sketch5.addGeometry(Part.Circle(Vector(143, 158, 0), Vector(0, 0, 1), 6), False)
sketch5.addGeometry(Part.Circle(Vector(126, 134, 0), Vector(0, 0, 1), 6), False)
sketch5.addGeometry(Part.Circle(Vector(122, 121, 0), Vector(0, 0, 1), 6), False)
sketch5.addGeometry(Part.Circle(Vector(119, 93, 0), Vector(0, 0, 1), 6), False)
sketch5.addGeometry(Part.Circle(Vector(142, 43, 0), Vector(0, 0, 1), 6), False)
sketch5.addGeometry(Part.Circle(Vector(166, 26, 0), Vector(0, 0, 1), 6), False)
sketch5.addGeometry(Part.Circle(Vector(179, 22, 0), Vector(0, 0, 1), 6), False)
sketch5.addGeometry(Part.Circle(Vector(207, 19, 0), Vector(0, 0, 1), 6), False)
sketch5.addGeometry(Part.Circle(Vector(257, 42, 0), Vector(0, 0, 1), 6), False)
sketch5.addGeometry(Part.Circle(Vector(274, 66, 0), Vector(0, 0, 1), 6), False)
sketch5.addGeometry(Part.Circle(Vector(278, 79, 0), Vector(0, 0, 1), 6), False)
sketch5.addGeometry(Part.Circle(Vector(281, 107, 0), Vector(0, 0, 1), 6), False)
sketch5.addGeometry(Part.Circle(Vector(258, 157, 0), Vector(0, 0, 1), 6), False)
sketch5.addGeometry(Part.Circle(Vector(234, 174, 0), Vector(0, 0, 1), 6), False)
sketch5.addGeometry(Part.Circle(Vector(221, 178, 0), Vector(0, 0, 1), 6), False)
sketch5.addGeometry(Part.Circle(Vector(-321, 178, 0), Vector(0, 0, 1), 6), False)
sketch5.addGeometry(Part.Circle(Vector(-334, 174, 0), Vector(0, 0, 1), 6), False)
sketch5.addGeometry(Part.Circle(Vector(-358, 157, 0), Vector(0, 0, 1), 6), False)
sketch5.addGeometry(Part.Circle(Vector(-381, 107, 0), Vector(0, 0, 1), 6), False)
sketch5.addGeometry(Part.Circle(Vector(-378, 79, 0), Vector(0, 0, 1), 6), False)
sketch5.addGeometry(Part.Circle(Vector(-374, 66, 0), Vector(0, 0, 1), 6), False)
sketch5.addGeometry(Part.Circle(Vector(-357, 42, 0), Vector(0, 0, 1), 6), False)
sketch5.addGeometry(Part.Circle(Vector(-307, 19, 0), Vector(0, 0, 1), 6), False)
sketch5.addGeometry(Part.Circle(Vector(-279, 22, 0), Vector(0, 0, 1), 6), False)
sketch5.addGeometry(Part.Circle(Vector(-266, 26, 0), Vector(0, 0, 1), 6), False)
sketch5.addGeometry(Part.Circle(Vector(-242, 43, 0), Vector(0, 0, 1), 6), False)
sketch5.addGeometry(Part.Circle(Vector(-219, 93, 0), Vector(0, 0, 1), 6), False)
sketch5.addGeometry(Part.Circle(Vector(-222, 121, 0), Vector(0, 0, 1), 6), False)
sketch5.addGeometry(Part.Circle(Vector(-226, 134, 0), Vector(0, 0, 1), 6), False)
sketch5.addGeometry(Part.Circle(Vector(-243, 158, 0), Vector(0, 0, 1), 6), False)
sketch5.addGeometry(Part.Circle(Vector(-293, 181, 0), Vector(0, 0, 1), 6), False)
sketch5.addConstraint(Sketcher.Constraint("Equal", 0, 1))
sketch5.addConstraint(Sketcher.Constraint("Equal", 1, 2))
sketch5.addConstraint(Sketcher.Constraint("Equal", 2, 3))
sketch5.addConstraint(Sketcher.Constraint("Equal", 3, 4))
sketch5.addConstraint(Sketcher.Constraint("Equal", 4, 5))
sketch5.addConstraint(Sketcher.Constraint("Equal", 5, 6))
sketch5.addConstraint(Sketcher.Constraint("Equal", 6, 7))
sketch5.addConstraint(Sketcher.Constraint("Equal", 7, 8))
sketch5.addConstraint(Sketcher.Constraint("Equal", 8, 9))
sketch5.addConstraint(Sketcher.Constraint("Equal", 9, 10))
sketch5.addConstraint(Sketcher.Constraint("Equal", 10, 11))
sketch5.addConstraint(Sketcher.Constraint("Equal", 11, 12))
sketch5.addConstraint(Sketcher.Constraint("Equal", 12, 13))
sketch5.addConstraint(Sketcher.Constraint("Equal", 13, 14))
sketch5.addConstraint(Sketcher.Constraint("Equal", 14, 15))
sketch5.addConstraint(Sketcher.Constraint("Equal", 15, 16))
sketch5.addConstraint(Sketcher.Constraint("Equal", 16, 17))
sketch5.addConstraint(Sketcher.Constraint("Equal", 17, 18))
sketch5.addConstraint(Sketcher.Constraint("Equal", 18, 19))
sketch5.addConstraint(Sketcher.Constraint("Equal", 19, 20))
sketch5.addConstraint(Sketcher.Constraint("Equal", 20, 21))
sketch5.addConstraint(Sketcher.Constraint("Equal", 21, 22))
sketch5.addConstraint(Sketcher.Constraint("Equal", 22, 23))
sketch5.addConstraint(Sketcher.Constraint("Equal", 23, 24))
sketch5.addConstraint(Sketcher.Constraint("Equal", 24, 25))
sketch5.addConstraint(Sketcher.Constraint("Equal", 25, 26))
sketch5.addConstraint(Sketcher.Constraint("Equal", 26, 27))
sketch5.addConstraint(Sketcher.Constraint("Equal", 27, 28))
sketch5.addConstraint(Sketcher.Constraint("Equal", 28, 29))
sketch5.addConstraint(Sketcher.Constraint("Equal", 29, 30))
sketch5.addConstraint(Sketcher.Constraint("Equal", 30, 31))
sketch5.addConstraint(Sketcher.Constraint("Horizontal", 15, 3, 16, 3))
sketch5.addConstraint(Sketcher.Constraint("Horizontal", 14, 3, 17, 3))
sketch5.addConstraint(Sketcher.Constraint("Horizontal", 13, 3, 18, 3))
sketch5.addConstraint(Sketcher.Constraint("Horizontal", 12, 3, 19, 3))
sketch5.addConstraint(Sketcher.Constraint("Horizontal", 11, 3, 20, 3))
sketch5.addConstraint(Sketcher.Constraint("Horizontal", 10, 3, 21, 3))
sketch5.addConstraint(Sketcher.Constraint("Horizontal", 9, 3, 22, 3))
sketch5.addConstraint(Sketcher.Constraint("Horizontal", 8, 3, 23, 3))
sketch5.addConstraint(Sketcher.Constraint("Horizontal", 7, 3, 24, 3))
sketch5.addConstraint(Sketcher.Constraint("Horizontal", 6, 3, 25, 3))
sketch5.addConstraint(Sketcher.Constraint("Horizontal", 5, 3, 26, 3))
sketch5.addConstraint(Sketcher.Constraint("Horizontal", 4, 3, 27, 3))
sketch5.addConstraint(Sketcher.Constraint("Horizontal", 3, 3, 28, 3))
sketch5.addConstraint(Sketcher.Constraint("Horizontal", 2, 3, 29, 3))
sketch5.addConstraint(Sketcher.Constraint("Horizontal", 1, 3, 30, 3))
sketch5.addConstraint(Sketcher.Constraint("Horizontal", 0, 3, 31, 3))
sketch5.addConstraint(Sketcher.Constraint("Diameter", 0, Q("12 mm")))
sketch5.addConstraint(Sketcher.Constraint("DistanceX", 19, 3, 4, 3, Q("500 mm")))
sketch5.addConstraint(Sketcher.Constraint("DistanceX", -1, 1, 1, 3, Q("142.609998 mm")))
sketch5.addConstraint(Sketcher.Constraint("DistanceY", -1, 1, 5, 3, Q("42.609998 mm")))
sketch5.addConstraint(Sketcher.Constraint("DistanceX", -1, 1, 9, 3, Q("257.390002 mm")))
sketch5.addConstraint(Sketcher.Constraint("DistanceY", -1, 1, 13, 3, Q("157.390002 mm")))
sketch5.addConstraint(Sketcher.Constraint("DistanceX", 22, 3, -1, 1, Q("357.390002 mm")))
sketch5.addConstraint(Sketcher.Constraint("DistanceX", 30, 3, -1, 1, Q("242.609998 mm")))
sketch5.addConstraint(Sketcher.Constraint("DistanceY", 1, 3, 0, 3, Q("23.418299 mm")))
sketch5.addConstraint(Sketcher.Constraint("DistanceX", 4, 3, 5, 3, Q("23.418299 mm")))
sketch5.addConstraint(Sketcher.Constraint("DistanceY", 6, 3, 2, 3, Q("107.9325 mm")))
sketch5.addConstraint(Sketcher.Constraint("DistanceY", 8, 3, 9, 3, Q("23.418299 mm")))
sketch5.addConstraint(Sketcher.Constraint("DistanceX", 6, 3, 10, 3, Q("107.9325 mm")))
sketch5.addConstraint(Sketcher.Constraint("DistanceX", 13, 3, 12, 3, Q("23.418299 mm")))
sketch5.addConstraint(Sketcher.Constraint("DistanceX", 18, 3, 4, 3, Q("476.581701 mm")))
sketch5.addConstraint(Sketcher.Constraint("DistanceY", 4, 3, 18, 3, Q("64.559299 mm")))
sketch5.addConstraint(Sketcher.Constraint("DistanceY", 21, 3, 17, 3, Q("107.9325 mm")))
sketch5.addConstraint(Sketcher.Constraint("DistanceX", 21, 3, 25, 3, Q("107.9325 mm")))
sketch5.addConstraint(Sketcher.Constraint("DistanceX", 26, 3, 27, 3, Q("23.418299 mm")))
sketch5.addConstraint(Sketcher.Constraint("DistanceX", 17, 3, 29, 3, Q("107.9325 mm")))
sketch5.addConstraint(Sketcher.Constraint("DistanceY", -1, 1, 0, 3, Q("180.933081 mm")))
sketch5.addConstraint(Sketcher.Constraint("DistanceX", -1, 1, 3, 3, Q("121.541409 mm")))
sketch5.addConstraint(Sketcher.Constraint("DistanceY", -1, 1, 3, 3, Q("121.114262 mm")))
sketch5.addConstraint(Sketcher.Constraint("DistanceX", -1, 1, 4, 3, Q("119.066919 mm")))
sketch5.addConstraint(Sketcher.Constraint("DistanceX", -1, 1, 7, 3, Q("178.885738 mm")))
sketch5.addConstraint(Sketcher.Constraint("DistanceY", -1, 1, 7, 3, Q("21.541409 mm")))
sketch5.addConstraint(Sketcher.Constraint("DistanceY", -1, 1, 8, 3, Q("19.066919 mm")))
sketch5.addConstraint(Sketcher.Constraint("DistanceX", -1, 1, 11, 3, Q("278.458591 mm")))
sketch5.addConstraint(Sketcher.Constraint("DistanceY", -1, 1, 11, 3, Q("78.885738 mm")))
sketch5.addConstraint(Sketcher.Constraint("DistanceX", -1, 1, 12, 3, Q("280.933081 mm")))
sketch5.addConstraint(Sketcher.Constraint("DistanceX", -1, 1, 15, 3, Q("221.114262 mm")))
sketch5.addConstraint(Sketcher.Constraint("DistanceY", -1, 1, 15, 3, Q("178.458591 mm")))
sketch5.addConstraint(Sketcher.Constraint("DistanceX", 16, 3, -1, 1, Q("321.114262 mm")))
sketch5.addConstraint(Sketcher.Constraint("DistanceX", 20, 3, -1, 1, Q("378.458591 mm")))
sketch5.addConstraint(Sketcher.Constraint("DistanceX", 24, 3, -1, 1, Q("278.885738 mm")))
sketch5.addConstraint(Sketcher.Constraint("DistanceX", 27, 3, -1, 1, Q("219.066919 mm")))
sketch5.addConstraint(Sketcher.Constraint("DistanceX", 28, 3, -1, 1, Q("221.541409 mm")))
sketch5.addConstraint(Sketcher.Constraint("DistanceX", 2, 3, 1, 3, Q("16.284752 mm")))
sketch5.addConstraint(Sketcher.Constraint("DistanceY", 5, 3, 2, 3, Q("91.647749 mm")))
sketch5.addConstraint(Sketcher.Constraint("DistanceX", 7, 3, 8, 3, Q("28.283559 mm")))
sketch5.addConstraint(Sketcher.Constraint("DistanceX", 6, 3, 9, 3, Q("91.647749 mm")))
sketch5.addConstraint(Sketcher.Constraint("DistanceY", 11, 3, 12, 3, Q("28.283559 mm")))
sketch5.addConstraint(Sketcher.Constraint("DistanceX", 0, 3, 12, 3, Q("88.102379 mm")))
sketch5.addConstraint(Sketcher.Constraint("DistanceY", 10, 3, 13, 3, Q("91.647749 mm")))
sketch5.addConstraint(Sketcher.Constraint("DistanceX", 1, 3, 14, 3, Q("91.647749 mm")))
sketch5.addConstraint(Sketcher.Constraint("DistanceX", 19, 3, 21, 3, Q("7.258328 mm")))
sketch5.addConstraint(Sketcher.Constraint("DistanceX", 23, 3, 24, 3, Q("28.283559 mm")))
sketch5.addConstraint(Sketcher.Constraint("DistanceX", 29, 3, 27, 3, Q("7.258328 mm")))
sketch5.addConstraint(Sketcher.Constraint("DistanceX", 16, 3, 31, 3, Q("28.283559 mm")))
pocket3 = body.newObject("PartDesign::Pocket", "Pocket002")
pocket3.Profile = sketch5
pocket3.Length = 4
pocket3.Reversed = True

doc.recompute()
